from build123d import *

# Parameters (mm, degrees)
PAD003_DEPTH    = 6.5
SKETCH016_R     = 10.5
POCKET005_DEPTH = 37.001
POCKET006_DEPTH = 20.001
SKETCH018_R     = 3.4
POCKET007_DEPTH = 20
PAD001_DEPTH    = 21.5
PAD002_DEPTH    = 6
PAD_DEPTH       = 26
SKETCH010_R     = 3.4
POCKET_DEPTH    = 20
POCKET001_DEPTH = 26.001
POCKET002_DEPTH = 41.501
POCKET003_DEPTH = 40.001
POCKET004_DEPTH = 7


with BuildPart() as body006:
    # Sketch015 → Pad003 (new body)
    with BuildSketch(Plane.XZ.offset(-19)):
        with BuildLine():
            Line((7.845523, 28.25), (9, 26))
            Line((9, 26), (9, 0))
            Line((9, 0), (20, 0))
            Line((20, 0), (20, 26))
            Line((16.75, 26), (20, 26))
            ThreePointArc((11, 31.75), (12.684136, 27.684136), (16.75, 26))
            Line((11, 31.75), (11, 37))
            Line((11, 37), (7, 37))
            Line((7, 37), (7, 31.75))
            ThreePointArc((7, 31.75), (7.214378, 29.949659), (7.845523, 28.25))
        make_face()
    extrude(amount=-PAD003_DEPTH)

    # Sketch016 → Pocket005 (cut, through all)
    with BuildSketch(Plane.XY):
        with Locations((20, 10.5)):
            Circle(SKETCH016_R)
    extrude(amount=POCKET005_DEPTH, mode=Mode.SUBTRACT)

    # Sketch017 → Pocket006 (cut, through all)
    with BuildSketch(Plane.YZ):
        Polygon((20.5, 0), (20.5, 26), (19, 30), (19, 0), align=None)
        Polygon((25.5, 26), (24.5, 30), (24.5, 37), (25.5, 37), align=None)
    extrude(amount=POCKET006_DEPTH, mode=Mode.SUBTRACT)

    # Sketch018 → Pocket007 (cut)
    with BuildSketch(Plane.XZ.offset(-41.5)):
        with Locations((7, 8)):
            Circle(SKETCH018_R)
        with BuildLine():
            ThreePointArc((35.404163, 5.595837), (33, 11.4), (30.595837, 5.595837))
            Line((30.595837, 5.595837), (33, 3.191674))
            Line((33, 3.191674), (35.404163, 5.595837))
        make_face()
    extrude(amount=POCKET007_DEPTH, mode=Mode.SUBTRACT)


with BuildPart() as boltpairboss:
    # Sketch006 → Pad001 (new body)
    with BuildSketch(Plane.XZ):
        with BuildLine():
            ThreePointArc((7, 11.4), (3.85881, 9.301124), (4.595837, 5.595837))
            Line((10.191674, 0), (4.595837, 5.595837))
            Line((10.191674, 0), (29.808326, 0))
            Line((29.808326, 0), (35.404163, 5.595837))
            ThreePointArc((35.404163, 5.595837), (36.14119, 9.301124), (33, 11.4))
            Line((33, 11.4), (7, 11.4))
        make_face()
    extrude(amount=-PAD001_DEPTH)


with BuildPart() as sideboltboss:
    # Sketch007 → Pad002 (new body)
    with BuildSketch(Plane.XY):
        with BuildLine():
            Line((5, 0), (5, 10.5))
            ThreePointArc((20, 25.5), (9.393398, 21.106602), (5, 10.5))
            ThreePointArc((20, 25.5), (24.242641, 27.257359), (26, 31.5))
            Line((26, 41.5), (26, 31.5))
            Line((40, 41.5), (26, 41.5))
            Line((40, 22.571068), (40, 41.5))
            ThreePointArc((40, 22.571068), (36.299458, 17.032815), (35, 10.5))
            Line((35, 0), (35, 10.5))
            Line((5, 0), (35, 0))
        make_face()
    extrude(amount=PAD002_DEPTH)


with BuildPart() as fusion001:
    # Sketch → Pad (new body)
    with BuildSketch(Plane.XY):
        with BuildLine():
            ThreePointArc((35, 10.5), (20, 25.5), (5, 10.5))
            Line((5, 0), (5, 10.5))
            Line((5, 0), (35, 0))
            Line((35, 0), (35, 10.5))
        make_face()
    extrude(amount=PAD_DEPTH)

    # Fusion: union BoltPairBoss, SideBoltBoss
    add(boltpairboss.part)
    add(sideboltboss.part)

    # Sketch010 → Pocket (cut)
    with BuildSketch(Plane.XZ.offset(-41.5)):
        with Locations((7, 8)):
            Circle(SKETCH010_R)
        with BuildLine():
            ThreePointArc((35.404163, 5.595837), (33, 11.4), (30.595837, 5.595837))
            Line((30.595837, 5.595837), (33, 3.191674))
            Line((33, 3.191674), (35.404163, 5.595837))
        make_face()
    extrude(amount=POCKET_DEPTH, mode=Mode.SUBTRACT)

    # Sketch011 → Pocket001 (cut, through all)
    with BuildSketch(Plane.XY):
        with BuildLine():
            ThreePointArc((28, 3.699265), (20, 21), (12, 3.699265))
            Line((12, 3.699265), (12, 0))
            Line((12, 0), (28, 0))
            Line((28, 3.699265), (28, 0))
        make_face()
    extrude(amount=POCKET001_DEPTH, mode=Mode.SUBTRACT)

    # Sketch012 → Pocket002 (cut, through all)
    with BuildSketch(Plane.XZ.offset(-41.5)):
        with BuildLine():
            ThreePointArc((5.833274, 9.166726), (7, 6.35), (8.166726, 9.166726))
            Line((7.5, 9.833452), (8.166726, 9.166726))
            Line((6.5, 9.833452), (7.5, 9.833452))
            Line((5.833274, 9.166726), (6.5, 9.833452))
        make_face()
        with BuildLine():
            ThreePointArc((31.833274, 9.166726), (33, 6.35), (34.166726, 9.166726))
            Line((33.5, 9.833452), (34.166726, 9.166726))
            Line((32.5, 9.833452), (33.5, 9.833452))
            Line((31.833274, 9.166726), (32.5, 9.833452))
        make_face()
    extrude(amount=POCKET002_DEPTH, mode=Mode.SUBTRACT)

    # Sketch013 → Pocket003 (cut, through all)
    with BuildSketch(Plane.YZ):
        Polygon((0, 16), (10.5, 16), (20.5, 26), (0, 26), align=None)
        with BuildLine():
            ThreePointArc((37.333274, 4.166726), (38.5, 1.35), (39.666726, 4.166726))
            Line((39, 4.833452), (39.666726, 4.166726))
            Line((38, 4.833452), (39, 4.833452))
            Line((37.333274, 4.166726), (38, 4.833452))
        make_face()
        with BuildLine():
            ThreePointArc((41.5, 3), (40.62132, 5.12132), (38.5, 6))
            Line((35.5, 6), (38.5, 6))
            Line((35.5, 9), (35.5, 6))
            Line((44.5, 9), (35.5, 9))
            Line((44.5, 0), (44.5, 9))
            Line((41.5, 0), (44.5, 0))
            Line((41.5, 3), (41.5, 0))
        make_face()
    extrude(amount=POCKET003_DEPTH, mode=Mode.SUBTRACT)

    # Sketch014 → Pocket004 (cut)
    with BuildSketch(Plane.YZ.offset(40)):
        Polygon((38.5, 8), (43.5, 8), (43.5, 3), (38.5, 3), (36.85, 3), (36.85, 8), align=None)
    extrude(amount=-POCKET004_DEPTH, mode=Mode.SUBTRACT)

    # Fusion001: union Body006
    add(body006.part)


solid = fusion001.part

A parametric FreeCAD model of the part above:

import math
import FreeCAD as App
import Part
import Sketcher
Q = App.Units.Quantity

doc = App.newDocument("Part")
body = doc.addObject("PartDesign::Body", "Body")

# Sketch on XZ plane
sketch1 = doc.addObject("Sketcher::SketchObject", "Sketch")
body.addObject(sketch1)
sketch1.AttachmentSupport = (doc.XZ_Plane, [""])
sketch1.MapMode = "FlatFace"
sketch1.AttachmentOffset = App.Placement(App.Vector(0, 0, -19), App.Rotation())
sketch1.addGeometry([
    Part.LineSegment(App.Vector(7.845523, 28.25, 0), App.Vector(9, 26, 0)),  # 0
    Part.LineSegment(App.Vector(9, 26, 0), App.Vector(9, 0, 0)),  # 1
    Part.LineSegment(App.Vector(9, 0, 0), App.Vector(20, 0, 0)),  # 2
    Part.LineSegment(App.Vector(20, 0, 0), App.Vector(20, 26, 0)),  # 3
    Part.LineSegment(App.Vector(20, 26, 0), App.Vector(16.75, 26, 0)),  # 4
    Part.ArcOfCircle(Part.Circle(App.Vector(16.75, 31.75, 0), App.Vector(0, 0, 1), 5.75), math.radians(180), math.radians(270)),  # 5
    Part.LineSegment(App.Vector(11, 31.75, 0), App.Vector(11, 37, 0)),  # 6
    Part.LineSegment(App.Vector(11, 37, 0), App.Vector(7, 37, 0)),  # 7
    Part.LineSegment(App.Vector(7, 37, 0), App.Vector(7, 31.75, 0)),  # 8
    Part.ArcOfCircle(Part.Circle(App.Vector(14.666799, 31.75, 0), App.Vector(0, 0, 1), 7.666799), math.radians(-179.999999), math.radians(-152.837619)),  # 9
], False)
sketch1.addConstraint([
    Sketcher.Constraint("Coincident", 0, 2, 1, 1),
    Sketcher.Constraint("Coincident", 1, 2, 2, 1),
    Sketcher.Constraint("Coincident", 2, 2, 3, 1),
    Sketcher.Constraint("Coincident", 3, 2, 4, 1),
    Sketcher.Constraint("Tangent", 4, 2, 5, 2),
    Sketcher.Constraint("Tangent", 5, 1, 6, 1),
    Sketcher.Constraint("Coincident", 6, 2, 7, 1),
    Sketcher.Constraint("Coincident", 7, 2, 8, 1),
    Sketcher.Constraint("Tangent", 8, 2, 9, 1),
    Sketcher.Constraint("Tangent", 9, 2, 0, 1),
    Sketcher.Constraint("Vertical", 1),
    Sketcher.Constraint("Horizontal", 2),
    Sketcher.Constraint("Vertical", 3),
    Sketcher.Constraint("Horizontal", 4),
    Sketcher.Constraint("Vertical", 6),
    Sketcher.Constraint("Horizontal", 7),
    Sketcher.Constraint("Vertical", 8),
    Sketcher.Constraint("PointOnObject", 1, 2, -1),
    Sketcher.Constraint("Horizontal", 5, 3, 9, 3),
    Sketcher.Constraint("Horizontal", 0, 2, 3, 2),
    Sketcher.Constraint("DistanceX", 2, 1, 2, 2, Q("11 mm")),
    Sketcher.Constraint("DistanceX", 7, 2, 7, 1, Q("4 mm")),
    Sketcher.Constraint("DistanceY", 1, 2, 1, 1, Q("26 mm")),
    Sketcher.Constraint("Radius", 5, Q("5.75 mm")),
    Sketcher.Constraint("DistanceX", -1, 1, 0, 2, Q("9 mm")),
    Sketcher.Constraint("DistanceX", -1, 1, 5, 1, Q("11 mm")),
    Sketcher.Constraint("DistanceY", -1, 1, 6, 2, Q("37 mm")),
    Sketcher.Constraint("Radius", 9, Q("7.666799 mm")),
])
pad1 = doc.addObject("PartDesign::Pad", "Pad")
body.addObject(pad1)
pad1.Profile = sketch1
pad1.Length = 6.5
pad1.Reversed = True

# Sketch on XY plane
sketch2 = doc.addObject("Sketcher::SketchObject", "Sketch001")
body.addObject(sketch2)
sketch2.AttachmentSupport = (doc.XY_Plane, [""])
sketch2.MapMode = "FlatFace"
sketch2.addGeometry(Part.Circle(App.Vector(20, 10.5, 0), App.Vector(0, 0, 1), 10.5), False)
sketch2.addConstraint([
    Sketcher.Constraint("Diameter", 0, Q("21 mm")),
    Sketcher.Constraint("DistanceX", -1, 1, 0, 3, Q("20 mm")),
    Sketcher.Constraint("DistanceY", -1, 1, 0, 3, Q("10.5 mm")),
])
pocket1 = doc.addObject("PartDesign::Pocket", "Pocket")
body.addObject(pocket1)
pocket1.Profile = sketch2
pocket1.Type = "ThroughAll"
pocket1.Reversed = True

# Sketch on YZ plane
sketch3 = doc.addObject("Sketcher::SketchObject", "Sketch002")
body.addObject(sketch3)
sketch3.AttachmentSupport = (doc.YZ_Plane, [""])
sketch3.MapMode = "FlatFace"
sketch3.addGeometry([
    Part.LineSegment(App.Vector(20.5, 0, 0), App.Vector(20.5, 26, 0)),  # 0
    Part.LineSegment(App.Vector(20.5, 26, 0), App.Vector(19, 30, 0)),  # 1
    Part.LineSegment(App.Vector(19, 30, 0), App.Vector(19, 0, 0)),  # 2
    Part.LineSegment(App.Vector(19, 0, 0), App.Vector(20.5, 0, 0)),  # 3
    Part.LineSegment(App.Vector(24.5, 30, 0), App.Vector(25.5, 26, 0)),  # 4
    Part.LineSegment(App.Vector(25.5, 26, 0), App.Vector(25.5, 37, 0)),  # 5
    Part.LineSegment(App.Vector(25.5, 37, 0), App.Vector(24.5, 37, 0)),  # 6
    Part.LineSegment(App.Vector(24.5, 37, 0), App.Vector(24.5, 30, 0)),  # 7
], False)
sketch3.addConstraint([
    Sketcher.Constraint("Coincident", 0, 2, 1, 1),
    Sketcher.Constraint("Coincident", 1, 2, 2, 1),
    Sketcher.Constraint("Coincident", 2, 2, 3, 1),
    Sketcher.Constraint("Coincident", 3, 2, 0, 1),
    Sketcher.Constraint("Coincident", 4, 2, 5, 1),
    Sketcher.Constraint("Coincident", 5, 2, 6, 1),
    Sketcher.Constraint("Coincident", 6, 2, 7, 1),
    Sketcher.Constraint("Coincident", 7, 2, 4, 1),
    Sketcher.Constraint("Vertical", 0),
    Sketcher.Constraint("Vertical", 2),
    Sketcher.Constraint("Horizontal", 3),
    Sketcher.Constraint("Vertical", 5),
    Sketcher.Constraint("Horizontal", 6),
    Sketcher.Constraint("Vertical", 7),
    Sketcher.Constraint("PointOnObject", 2, 2, -1),
    Sketcher.Constraint("Horizontal", 0, 2, 4, 2),
    Sketcher.Constraint("Horizontal", 1, 2, 7, 2),
    Sketcher.Constraint("DistanceX", 6, 2, 6, 1, Q("1 mm")),
    Sketcher.Constraint("DistanceY", 0, 1, 0, 2, Q("26 mm")),
    Sketcher.Constraint("DistanceY", 2, 2, 2, 1, Q("30 mm")),
    Sketcher.Constraint("DistanceY", 5, 1, 5, 2, Q("11 mm")),
    Sketcher.Constraint("DistanceX", 3, 1, 3, 2, Q("1.5 mm")),
    Sketcher.Constraint("DistanceX", -1, 1, 1, 2, Q("19 mm")),
    Sketcher.Constraint("DistanceX", 0, 2, 4, 2, Q("5 mm")),
])
pocket2 = doc.addObject("PartDesign::Pocket", "Pocket001")
body.addObject(pocket2)
pocket2.Profile = sketch3
pocket2.Type = "ThroughAll"
pocket2.Reversed = True

# Sketch on XZ plane
sketch4 = doc.addObject("Sketcher::SketchObject", "Sketch003")
body.addObject(sketch4)
sketch4.AttachmentSupport = (doc.XZ_Plane, [""])
sketch4.MapMode = "FlatFace"
sketch4.AttachmentOffset = App.Placement(App.Vector(0, 0, -41.5), App.Rotation())
sketch4.addGeometry([
    Part.Circle(App.Vector(7, 8, 0), App.Vector(0, 0, 1), 3.4),
    Part.ArcOfCircle(Part.Circle(App.Vector(33, 8, 0), App.Vector(0, 0, 1), 3.4), math.radians(-45.000001), math.radians(225.000001)),
    Part.LineSegment(App.Vector(30.595837, 5.595837, 0), App.Vector(33, 3.191674, 0)),
    Part.LineSegment(App.Vector(33, 3.191674, 0), App.Vector(35.404163, 5.595837, 0)),
], False)
sketch4.addConstraint([
    Sketcher.Constraint("Tangent", 1, 2, 2, 1),
    Sketcher.Constraint("Coincident", 2, 2, 3, 1),
    Sketcher.Constraint("Tangent", 3, 2, 1, 1),
    Sketcher.Constraint("Equal", 0, 1),
    Sketcher.Constraint("Perpendicular", 2, 3),
    Sketcher.Constraint("Horizontal", 0, 3, 1, 3),
    Sketcher.Constraint("Horizontal", 1, 2, 3, 2),
    Sketcher.Constraint("Diameter", 0, Q("6.8 mm")),
    Sketcher.Constraint("DistanceX", -1, 1, 0, 3, Q("7 mm")),
    Sketcher.Constraint("DistanceY", -1, 1, 0, 3, Q("8 mm")),
    Sketcher.Constraint("DistanceX", -1, 1, 1, 3, Q("33 mm")),
])
pocket3 = doc.addObject("PartDesign::Pocket", "Pocket002")
body.addObject(pocket3)
pocket3.Profile = sketch4
pocket3.Length = 20
pocket3.Reversed = True
body2 = doc.addObject("PartDesign::Body", "Body001")

# Sketch on XZ plane
sketch5 = doc.addObject("Sketcher::SketchObject", "Sketch004")
body2.addObject(sketch5)
sketch5.AttachmentSupport = (doc.getObject("XZ_Plane001"), [""])
sketch5.MapMode = "FlatFace"
sketch5.addGeometry([
    Part.ArcOfCircle(Part.Circle(App.Vector(7, 8, 0), App.Vector(0, 0, 1), 3.4), math.radians(90.000006), math.radians(224.999995)),  # 0
    Part.LineSegment(App.Vector(4.595837, 5.595837, 0), App.Vector(10.191674, 0, 0)),  # 1
    Part.LineSegment(App.Vector(10.191674, 0, 0), App.Vector(29.808326, 0, 0)),  # 2
    Part.LineSegment(App.Vector(29.808326, 0, 0), App.Vector(35.404163, 5.595837, 0)),  # 3
    Part.ArcOfCircle(Part.Circle(App.Vector(33, 8, 0), App.Vector(0, 0, 1), 3.4), math.radians(-44.999995), math.radians(89.999994)),  # 4
    Part.LineSegment(App.Vector(33, 11.4, 0), App.Vector(7, 11.4, 0)),  # 5
], False)
sketch5.addConstraint([
    Sketcher.Constraint("Tangent", 0, 2, 1, 1),
    Sketcher.Constraint("Coincident", 1, 2, 2, 1),
    Sketcher.Constraint("Coincident", 2, 2, 3, 1),
    Sketcher.Constraint("Tangent", 3, 2, 4, 1),
    Sketcher.Constraint("Tangent", 4, 2, 5, 1),
    Sketcher.Constraint("Tangent", 5, 2, 0, 1),
    Sketcher.Constraint("Horizontal", 2),
    Sketcher.Constraint("Horizontal", 5),
    Sketcher.Constraint("Equal", 0, 4),
    Sketcher.Constraint("PointOnObject", 1, 2, -1),
    Sketcher.Constraint("Perpendicular", 1, 3),
    Sketcher.Constraint("Horizontal", 0, 2, 3, 2),
    Sketcher.Constraint("Radius", 0, Q("3.4 mm")),
    Sketcher.Constraint("DistanceX", 5, 2, 5, 1, Q("26 mm")),
    Sketcher.Constraint("DistanceX", -1, 1, 0, 3, Q("7 mm")),
    Sketcher.Constraint("DistanceY", -1, 1, 0, 3, Q("8 mm")),
])
pad2 = doc.addObject("PartDesign::Pad", "Pad001")
body2.addObject(pad2)
pad2.Profile = sketch5
pad2.Length = 21.5
pad2.Reversed = True
body3 = doc.addObject("PartDesign::Body", "Body002")

# Sketch on XY plane
sketch6 = doc.addObject("Sketcher::SketchObject", "Sketch005")
body3.addObject(sketch6)
sketch6.AttachmentSupport = (doc.getObject("XY_Plane002"), [""])
sketch6.MapMode = "FlatFace"
sketch6.addGeometry([
    Part.LineSegment(App.Vector(5, 10.5, 0), App.Vector(5, 0, 0)),  # 0
    Part.LineSegment(App.Vector(5, 0, 0), App.Vector(35, 0, 0)),  # 1
    Part.LineSegment(App.Vector(35, 0, 0), App.Vector(35, 10.5, 0)),  # 2
    Part.ArcOfCircle(Part.Circle(App.Vector(52.071072, 10.499999, 0), App.Vector(0, 0, 1), 17.071072), math.radians(135.000005), math.radians(179.999995)),  # 3
    Part.LineSegment(App.Vector(40, 22.571068, 0), App.Vector(40, 41.5, 0)),  # 4
    Part.LineSegment(App.Vector(40, 41.5, 0), App.Vector(26, 41.5, 0)),  # 5
    Part.LineSegment(App.Vector(26, 41.5, 0), App.Vector(26, 31.5, 0)),  # 6
    Part.ArcOfCircle(Part.Circle(App.Vector(20.000001, 31.499999, 0), App.Vector(0, 0, 1), 5.999999), math.radians(-90.00001), math.radians(0.00001)),  # 7
    Part.ArcOfCircle(Part.Circle(App.Vector(19.999999, 10.500001, 0), App.Vector(0, 0, 1), 14.999999), math.radians(89.999996), math.radians(180.000004)),  # 8
], False)
sketch6.addConstraint([
    Sketcher.Constraint("Coincident", 0, 2, 1, 1),
    Sketcher.Constraint("Coincident", 1, 2, 2, 1),
    Sketcher.Constraint("Tangent", 2, 2, 3, 2),
    Sketcher.Constraint("Coincident", 3, 1, 4, 1),
    Sketcher.Constraint("Coincident", 4, 2, 5, 1),
    Sketcher.Constraint("Coincident", 5, 2, 6, 1),
    Sketcher.Constraint("Tangent", 6, 2, 7, 2),
    Sketcher.Constraint("Tangent", 7, 1, 8, 1),
    Sketcher.Constraint("Tangent", 8, 2, 0, 1),
    Sketcher.Constraint("Vertical", 0),
    Sketcher.Constraint("Horizontal", 1),
    Sketcher.Constraint("Vertical", 2),
    Sketcher.Constraint("Vertical", 4),
    Sketcher.Constraint("Horizontal", 5),
    Sketcher.Constraint("Vertical", 6),
    Sketcher.Constraint("PointOnObject", 0, 2, -1),
    Sketcher.Constraint("Horizontal", 8, 3, 2, 2),
    Sketcher.Constraint("Vertical", 8, 3, 7, 1),
    Sketcher.Constraint("Radius", 7, Q("5.999999 mm")),
    Sketcher.Constraint("Radius", 8, Q("14.999999 mm")),
    Sketcher.Constraint("DistanceX", 1, 1, 1, 2, Q("30 mm")),
    Sketcher.Constraint("DistanceX", 5, 2, 5, 1, Q("14 mm")),
    Sketcher.Constraint("DistanceY", 6, 2, 6, 1, Q("10 mm")),
    Sketcher.Constraint("DistanceY", 0, 2, 0, 1, Q("10.5 mm")),
    Sketcher.Constraint("DistanceX", -1, 1, 7, 3, Q("20.000001 mm")),
    Sketcher.Constraint("Radius", 3, Q("17.071072 mm")),
])
pad3 = doc.addObject("PartDesign::Pad", "Pad002")
body3.addObject(pad3)
pad3.Profile = sketch6
pad3.Length = 6
body4 = doc.addObject("PartDesign::Body", "Body003")

# Sketch on XY plane
sketch7 = doc.addObject("Sketcher::SketchObject", "Sketch006")
body4.addObject(sketch7)
sketch7.AttachmentSupport = (doc.getObject("XY_Plane003"), [""])
sketch7.MapMode = "FlatFace"
sketch7.addGeometry([
    Part.ArcOfCircle(Part.Circle(App.Vector(20, 10.5, 0), App.Vector(0, 0, 1), 15), math.radians(0), math.radians(180)),
    Part.LineSegment(App.Vector(5, 10.5, 0), App.Vector(5, 0, 0)),
    Part.LineSegment(App.Vector(5, 0, 0), App.Vector(35, 0, 0)),
    Part.LineSegment(App.Vector(35, 0, 0), App.Vector(35, 10.5, 0)),
], False)
sketch7.addConstraint([
    Sketcher.Constraint("Tangent", 0, 2, 1, 1),
    Sketcher.Constraint("Coincident", 1, 2, 2, 1),
    Sketcher.Constraint("Coincident", 2, 2, 3, 1),
    Sketcher.Constraint("Tangent", 3, 2, 0, 1),
    Sketcher.Constraint("Vertical", 1),
    Sketcher.Constraint("Horizontal", 2),
    Sketcher.Constraint("Vertical", 3),
    Sketcher.Constraint("PointOnObject", 1, 2, -1),
    Sketcher.Constraint("Radius", 0, Q("15 mm")),
    Sketcher.Constraint("DistanceY", 1, 2, 1, 1, Q("10.5 mm")),
    Sketcher.Constraint("DistanceX", -1, 1, 0, 3, Q("20 mm")),
])
pad4 = doc.addObject("PartDesign::Pad", "Pad003")
body4.addObject(pad4)
pad4.Profile = sketch7
pad4.Length = 26
doc.recompute()

boolean = doc.addObject("PartDesign::Boolean", "Boolean")
body4.addObject(boolean)
boolean.Type = "Fuse"
boolean.addObjects([body2])
doc.recompute()

boolean2 = doc.addObject("PartDesign::Boolean", "Boolean001")
body4.addObject(boolean2)
boolean2.Type = "Fuse"
boolean2.addObjects([body3])

# Sketch on XZ plane
sketch8 = doc.addObject("Sketcher::SketchObject", "Sketch007")
body4.addObject(sketch8)
sketch8.AttachmentSupport = (doc.getObject("XZ_Plane003"), [""])
sketch8.MapMode = "FlatFace"
sketch8.AttachmentOffset = App.Placement(App.Vector(0, 0, -41.5), App.Rotation())
sketch8.addGeometry([
    Part.Circle(App.Vector(7, 8, 0), App.Vector(0, 0, 1), 3.4),
    Part.ArcOfCircle(Part.Circle(App.Vector(33, 8, 0), App.Vector(0, 0, 1), 3.4), math.radians(-45.000001), math.radians(225.000001)),
    Part.LineSegment(App.Vector(30.595837, 5.595837, 0), App.Vector(33, 3.191674, 0)),
    Part.LineSegment(App.Vector(33, 3.191674, 0), App.Vector(35.404163, 5.595837, 0)),
], False)
sketch8.addConstraint([
    Sketcher.Constraint("Tangent", 1, 2, 2, 1),
    Sketcher.Constraint("Coincident", 2, 2, 3, 1),
    Sketcher.Constraint("Tangent", 3, 2, 1, 1),
    Sketcher.Constraint("Equal", 0, 1),
    Sketcher.Constraint("Perpendicular", 2, 3),
    Sketcher.Constraint("Horizontal", 0, 3, 1, 3),
    Sketcher.Constraint("Horizontal", 1, 2, 3, 2),
    Sketcher.Constraint("Diameter", 0, Q("6.8 mm")),
    Sketcher.Constraint("DistanceX", -1, 1, 0, 3, Q("7 mm")),
    Sketcher.Constraint("DistanceY", -1, 1, 0, 3, Q("8 mm")),
    Sketcher.Constraint("DistanceX", -1, 1, 1, 3, Q("33 mm")),
])
pocket4 = doc.addObject("PartDesign::Pocket", "Pocket003")
body4.addObject(pocket4)
pocket4.Profile = sketch8
pocket4.Length = 20
pocket4.Reversed = True

# Sketch on XY plane
sketch9 = doc.addObject("Sketcher::SketchObject", "Sketch008")
body4.addObject(sketch9)
sketch9.AttachmentSupport = (doc.getObject("XY_Plane003"), [""])
sketch9.MapMode = "FlatFace"
sketch9.addGeometry([
    Part.ArcOfCircle(Part.Circle(App.Vector(20, 10.5, 0), App.Vector(0, 0, 1), 10.5), math.radians(-40.367593), math.radians(220.367593)),
    Part.LineSegment(App.Vector(12, 3.699265, 0), App.Vector(12, 0, 0)),
    Part.LineSegment(App.Vector(12, 0, 0), App.Vector(28, 0, 0)),
    Part.LineSegment(App.Vector(28, 0, 0), App.Vector(28, 3.699265, 0)),
], False)
sketch9.addConstraint([
    Sketcher.Constraint("Coincident", 0, 2, 1, 1),
    Sketcher.Constraint("Coincident", 1, 2, 2, 1),
    Sketcher.Constraint("Coincident", 2, 2, 3, 1),
    Sketcher.Constraint("Coincident", 3, 2, 0, 1),
    Sketcher.Constraint("Vertical", 1),
    Sketcher.Constraint("Horizontal", 2),
    Sketcher.Constraint("Vertical", 3),
    Sketcher.Constraint("PointOnObject", 1, 2, -1),
    Sketcher.Constraint("Horizontal", 0, 2, 3, 2),
    Sketcher.Constraint("Radius", 0, Q("10.5 mm")),
    Sketcher.Constraint("DistanceX", 2, 1, 2, 2, Q("16 mm")),
    Sketcher.Constraint("DistanceX", -1, 1, 0, 3, Q("20 mm")),
    Sketcher.Constraint("DistanceY", -1, 1, 0, 3, Q("10.5 mm")),
])
pocket5 = doc.addObject("PartDesign::Pocket", "Pocket004")
body4.addObject(pocket5)
pocket5.Profile = sketch9
pocket5.Type = "ThroughAll"
pocket5.Reversed = True

# Sketch on XZ plane
sketch10 = doc.addObject("Sketcher::SketchObject", "Sketch009")
body4.addObject(sketch10)
sketch10.AttachmentSupport = (doc.getObject("XZ_Plane003"), [""])
sketch10.MapMode = "FlatFace"
sketch10.AttachmentOffset = App.Placement(App.Vector(0, 0, -41.5), App.Rotation())
sketch10.addGeometry([
    Part.ArcOfCircle(Part.Circle(App.Vector(7, 8, 0), App.Vector(0, 0, 1), 1.65), math.radians(134.999996), math.radians(405.000004)),  # 0
    Part.LineSegment(App.Vector(8.166726, 9.166726, 0), App.Vector(7.5, 9.833452, 0)),  # 1
    Part.LineSegment(App.Vector(7.5, 9.833452, 0), App.Vector(6.5, 9.833452, 0)),  # 2
    Part.LineSegment(App.Vector(6.5, 9.833452, 0), App.Vector(5.833274, 9.166726, 0)),  # 3
    Part.ArcOfCircle(Part.Circle(App.Vector(33, 8, 0), App.Vector(0, 0, 1), 1.65), math.radians(134.999996), math.radians(405.000004)),  # 4
    Part.LineSegment(App.Vector(34.166726, 9.166726, 0), App.Vector(33.5, 9.833452, 0)),  # 5
    Part.LineSegment(App.Vector(33.5, 9.833452, 0), App.Vector(32.5, 9.833452, 0)),  # 6
    Part.LineSegment(App.Vector(32.5, 9.833452, 0), App.Vector(31.833274, 9.166726, 0)),  # 7
], False)
sketch10.addConstraint([
    Sketcher.Constraint("Tangent", 0, 2, 1, 1),
    Sketcher.Constraint("Coincident", 1, 2, 2, 1),
    Sketcher.Constraint("Coincident", 2, 2, 3, 1),
    Sketcher.Constraint("Tangent", 3, 2, 0, 1),
    Sketcher.Constraint("Tangent", 4, 2, 5, 1),
    Sketcher.Constraint("Coincident", 5, 2, 6, 1),
    Sketcher.Constraint("Coincident", 6, 2, 7, 1),
    Sketcher.Constraint("Tangent", 7, 2, 4, 1),
    Sketcher.Constraint("Horizontal", 2),
    Sketcher.Constraint("Horizontal", 6),
    Sketcher.Constraint("Equal", 0, 4),
    Sketcher.Constraint("Perpendicular", 1, 3),
    Sketcher.Constraint("Perpendicular", 3, 5),
    Sketcher.Constraint("Perpendicular", 5, 7),
    Sketcher.Constraint("Horizontal", 0, 3, 4, 3),
    Sketcher.Constraint("Horizontal", 0, 2, 3, 2),
    Sketcher.Constraint("Horizontal", 2, 2, 5, 2),
    Sketcher.Constraint("DistanceX", 2, 2, 2, 1, Q("1 mm")),
    Sketcher.Constraint("Radius", 0, Q("1.65 mm")),
    Sketcher.Constraint("DistanceX", -1, 1, 0, 3, Q("7 mm")),
    Sketcher.Constraint("DistanceY", -1, 1, 0, 3, Q("8 mm")),
    Sketcher.Constraint("DistanceX", -1, 1, 4, 3, Q("33 mm")),
])
pocket6 = doc.addObject("PartDesign::Pocket", "Pocket005")
body4.addObject(pocket6)
pocket6.Profile = sketch10
pocket6.Type = "ThroughAll"
pocket6.Reversed = True

# Sketch on YZ plane
sketch11 = doc.addObject("Sketcher::SketchObject", "Sketch010")
body4.addObject(sketch11)
sketch11.AttachmentSupport = (doc.getObject("YZ_Plane003"), [""])
sketch11.MapMode = "FlatFace"
sketch11.addGeometry([
    Part.LineSegment(App.Vector(0, 16, 0), App.Vector(10.5, 16, 0)),  # 0
    Part.LineSegment(App.Vector(10.5, 16, 0), App.Vector(20.5, 26, 0)),  # 1
    Part.LineSegment(App.Vector(20.5, 26, 0), App.Vector(0, 26, 0)),  # 2
    Part.LineSegment(App.Vector(0, 26, 0), App.Vector(0, 16, 0)),  # 3
    Part.ArcOfCircle(Part.Circle(App.Vector(38.5, 3, 0), App.Vector(0, 0, 1), 1.65), math.radians(134.999996), math.radians(405.000004)),  # 4
    Part.LineSegment(App.Vector(39.666726, 4.166726, 0), App.Vector(39, 4.833452, 0)),  # 5
    Part.LineSegment(App.Vector(39, 4.833452, 0), App.Vector(38, 4.833452, 0)),  # 6
    Part.LineSegment(App.Vector(38, 4.833452, 0), App.Vector(37.333274, 4.166726, 0)),  # 7
    Part.ArcOfCircle(Part.Circle(App.Vector(38.499999, 2.999999, 0), App.Vector(0, 0, 1), 3.000001), math.radians(0.000022), math.radians(89.999978)),  # 8
    Part.LineSegment(App.Vector(41.5, 3, 0), App.Vector(41.5, 0, 0)),  # 9
    Part.LineSegment(App.Vector(41.5, 0, 0), App.Vector(44.5, 0, 0)),  # 10
    Part.LineSegment(App.Vector(44.5, 0, 0), App.Vector(44.5, 9, 0)),  # 11
    Part.LineSegment(App.Vector(44.5, 9, 0), App.Vector(35.5, 9, 0)),  # 12
    Part.LineSegment(App.Vector(35.5, 9, 0), App.Vector(35.5, 6, 0)),  # 13
    Part.LineSegment(App.Vector(35.5, 6, 0), App.Vector(38.5, 6, 0)),  # 14
], False)
sketch11.addConstraint([
    Sketcher.Constraint("Coincident", 0, 2, 1, 1),
    Sketcher.Constraint("Coincident", 1, 2, 2, 1),
    Sketcher.Constraint("Coincident", 2, 2, 3, 1),
    Sketcher.Constraint("Coincident", 3, 2, 0, 1),
    Sketcher.Constraint("Tangent", 4, 2, 5, 1),
    Sketcher.Constraint("Coincident", 5, 2, 6, 1),
    Sketcher.Constraint("Coincident", 6, 2, 7, 1),
    Sketcher.Constraint("Tangent", 7, 2, 4, 1),
    Sketcher.Constraint("Tangent", 8, 1, 9, 1),
    Sketcher.Constraint("Coincident", 9, 2, 10, 1),
    Sketcher.Constraint("Coincident", 10, 2, 11, 1),
    Sketcher.Constraint("Coincident", 11, 2, 12, 1),
    Sketcher.Constraint("Coincident", 12, 2, 13, 1),
    Sketcher.Constraint("Coincident", 13, 2, 14, 1),
    Sketcher.Constraint("Tangent", 14, 2, 8, 2),
    Sketcher.Constraint("Horizontal", 0),
    Sketcher.Constraint("Horizontal", 2),
    Sketcher.Constraint("Vertical", 3),
    Sketcher.Constraint("Horizontal", 6),
    Sketcher.Constraint("Vertical", 9),
    Sketcher.Constraint("Horizontal", 10),
    Sketcher.Constraint("Vertical", 11),
    Sketcher.Constraint("Horizontal", 12),
    Sketcher.Constraint("Vertical", 13),
    Sketcher.Constraint("Horizontal", 14),
    Sketcher.Constraint("Coincident", 8, 3, 4, 3),
    Sketcher.Constraint("PointOnObject", 2, 2, -2),
    Sketcher.Constraint("PointOnObject", 9, 2, -1),
    Sketcher.Constraint("Perpendicular", 1, 5),
    Sketcher.Constraint("Perpendicular", 5, 7),
    Sketcher.Constraint("Horizontal", 4, 2, 7, 2),
    Sketcher.Constraint("Equal", 10, 14),
    Sketcher.Constraint("Equal", 14, 9),
    Sketcher.Constraint("Equal", 12, 11),
    Sketcher.Constraint("Radius", 8, Q("3.000001 mm")),
    Sketcher.Constraint("DistanceX", 6, 2, 6, 1, Q("1 mm")),
    Sketcher.Constraint("DistanceX", 10, 1, 10, 2, Q("3 mm")),
    Sketcher.Constraint("DistanceY", 3, 2, 3, 1, Q("10 mm")),
    Sketcher.Constraint("Radius", 4, Q("1.65 mm")),
    Sketcher.Constraint("DistanceX", 0, 1, 0, 2, Q("10.5 mm")),
    Sketcher.Constraint("DistanceY", -1, 1, 0, 2, Q("16 mm")),
    Sketcher.Constraint("DistanceX", -1, 1, 5, 2, Q("39 mm")),
])
pocket7 = doc.addObject("PartDesign::Pocket", "Pocket006")
body4.addObject(pocket7)
pocket7.Profile = sketch11
pocket7.Type = "ThroughAll"
pocket7.Reversed = True

# Sketch on YZ plane
sketch12 = doc.addObject("Sketcher::SketchObject", "Sketch011")
body4.addObject(sketch12)
sketch12.AttachmentSupport = (doc.getObject("YZ_Plane003"), [""])
sketch12.MapMode = "FlatFace"
sketch12.AttachmentOffset = App.Placement(App.Vector(0, 0, 40), App.Rotation())
sketch12.addGeometry([
    Part.LineSegment(App.Vector(43.5, 8, 0), App.Vector(36.85, 8, 0)),
    Part.LineSegment(App.Vector(36.85, 8, 0), App.Vector(36.85, 3, 0)),
    Part.LineSegment(App.Vector(36.85, 3, 0), App.Vector(43.5, 3, 0)),
    Part.LineSegment(App.Vector(43.5, 3, 0), App.Vector(43.5, 8, 0)),
], False)
sketch12.addConstraint([
    Sketcher.Constraint("Coincident", 0, 2, 1, 1),
    Sketcher.Constraint("Coincident", 1, 2, 2, 1),
    Sketcher.Constraint("Coincident", 2, 2, 3, 1),
    Sketcher.Constraint("Coincident", 3, 2, 0, 1),
    Sketcher.Constraint("Horizontal", 0),
    Sketcher.Constraint("Vertical", 1),
    Sketcher.Constraint("Horizontal", 2),
    Sketcher.Constraint("Vertical", 3),
    Sketcher.Constraint("DistanceY", 1, 2, 1, 1, Q("5 mm")),
    Sketcher.Constraint("DistanceY", -1, 1, 0, 2, Q("8 mm")),
    Sketcher.Constraint("DistanceX", 0, 2, 0, 1, Q("6.65 mm")),
    Sketcher.Constraint("DistanceX", -1, 1, 2, 2, Q("43.5 mm")),
])
pocket8 = doc.addObject("PartDesign::Pocket", "Pocket007")
body4.addObject(pocket8)
pocket8.Profile = sketch12
pocket8.Length = 7
doc.recompute()

boolean3 = doc.addObject("PartDesign::Boolean", "Boolean002")
body4.addObject(boolean3)
boolean3.Type = "Fuse"
boolean3.addObjects([body])

doc.recompute()
